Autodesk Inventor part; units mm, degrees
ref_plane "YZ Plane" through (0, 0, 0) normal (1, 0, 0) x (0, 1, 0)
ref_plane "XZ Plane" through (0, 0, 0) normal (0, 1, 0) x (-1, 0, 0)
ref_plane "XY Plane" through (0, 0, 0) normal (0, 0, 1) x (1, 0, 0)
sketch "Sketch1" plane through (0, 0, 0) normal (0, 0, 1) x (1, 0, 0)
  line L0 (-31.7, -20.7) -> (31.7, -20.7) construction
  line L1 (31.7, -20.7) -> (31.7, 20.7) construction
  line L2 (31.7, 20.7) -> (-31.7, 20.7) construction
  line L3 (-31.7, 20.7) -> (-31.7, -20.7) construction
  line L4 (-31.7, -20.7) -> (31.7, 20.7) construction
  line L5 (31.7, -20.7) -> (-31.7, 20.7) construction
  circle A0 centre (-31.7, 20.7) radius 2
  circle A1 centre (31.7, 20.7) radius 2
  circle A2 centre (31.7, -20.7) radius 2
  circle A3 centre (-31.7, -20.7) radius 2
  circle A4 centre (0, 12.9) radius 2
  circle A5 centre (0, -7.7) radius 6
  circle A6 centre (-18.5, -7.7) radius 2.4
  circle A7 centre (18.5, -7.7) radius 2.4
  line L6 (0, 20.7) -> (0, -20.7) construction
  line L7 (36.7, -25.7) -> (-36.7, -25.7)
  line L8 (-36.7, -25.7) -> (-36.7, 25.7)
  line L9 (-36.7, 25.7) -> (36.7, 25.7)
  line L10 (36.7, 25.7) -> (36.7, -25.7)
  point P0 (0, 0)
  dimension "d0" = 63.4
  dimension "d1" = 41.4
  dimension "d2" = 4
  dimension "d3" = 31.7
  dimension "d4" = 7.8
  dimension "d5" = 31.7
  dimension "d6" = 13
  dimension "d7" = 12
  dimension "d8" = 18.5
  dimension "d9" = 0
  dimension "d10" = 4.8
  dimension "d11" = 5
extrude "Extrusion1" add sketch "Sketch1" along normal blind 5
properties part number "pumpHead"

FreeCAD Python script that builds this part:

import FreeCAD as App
import Part
import Sketcher
from FreeCAD import Vector


def add_polygon(sketch, points):
    """Adds a closed chain of lines whose ends are joined by coincident constraints."""
    first, n = sketch.GeometryCount, len(points)
    for a, b in zip(points, points[1:] + points[:1]):
        sketch.addGeometry(Part.LineSegment(App.Vector(*a, 0), App.Vector(*b, 0)), False)
    for i in range(n):
        sketch.addConstraint(Sketcher.Constraint("Coincident", first + i, 2, first + (i + 1) % n, 1))

doc = App.newDocument("Part")
body = doc.addObject("PartDesign::Body", "Body")

# Sketch on XY plane
sketch1 = body.newObject("Sketcher::SketchObject", "Sketch")
sketch1.AttachmentSupport = (doc.getObject("XY_Plane"), [""])
sketch1.MapMode = "FlatFace"
add_polygon(sketch1, [(-36.7, -25.7), (36.7, -25.7), (36.7, 25.7), (-36.7, 25.7)])  # lines 0-3
sketch1.addGeometry(Part.Circle(Vector(-31.7, -20.7, 0), Vector(0, 0, 1), 2), False)  # 4
sketch1.addGeometry(Part.Circle(Vector(-18.5, -7.7, 0), Vector(0, 0, 1), 2.4), False)  # 5
sketch1.addGeometry(Part.Circle(Vector(31.7, -20.7, 0), Vector(0, 0, 1), 2), False)  # 6
sketch1.addGeometry(Part.Circle(Vector(0, -7.7, 0), Vector(0, 0, 1), 6), False)  # 7
sketch1.addGeometry(Part.Circle(Vector(18.5, -7.7, 0), Vector(0, 0, 1), 2.4), False)  # 8
sketch1.addGeometry(Part.Circle(Vector(-31.7, 20.7, 0), Vector(0, 0, 1), 2), False)  # 9
sketch1.addGeometry(Part.Circle(Vector(0, 12.9, 0), Vector(0, 0, 1), 2), False)  # 10
sketch1.addGeometry(Part.Circle(Vector(31.7, 20.7, 0), Vector(0, 0, 1), 2), False)  # 11
sketch1.addConstraint([
    Sketcher.Constraint("Horizontal", 0),
    Sketcher.Constraint("Vertical", 1),
    Sketcher.Constraint("Horizontal", 2),
    Sketcher.Constraint("Vertical", 3),
    Sketcher.Constraint("Equal", 4, 6),
    Sketcher.Constraint("Equal", 5, 8),
    Sketcher.Constraint("Equal", 6, 9),
    Sketcher.Constraint("Equal", 9, 10),
    Sketcher.Constraint("Equal", 10, 11),
    Sketcher.Constraint("Symmetric", 6, 3, 9, 3, -1, 1),
    Sketcher.Constraint("Symmetric", 4, 3, 11, 3, -1, 1),
    Sketcher.Constraint("Symmetric", 0, 2, 2, 2, -1, 1),
    Sketcher.Constraint("Symmetric", 4, 3, 6, 3, -2),
    Sketcher.Constraint("Symmetric", 5, 3, 8, 3, -2),
    Sketcher.Constraint("PointOnObject", 7, 3, -2),
    Sketcher.Constraint("PointOnObject", 10, 3, -2),
    Sketcher.Constraint("Horizontal", 5, 3, 7, 3),
    Sketcher.Constraint("Diameter", 4, 4.0),
    Sketcher.Constraint("Diameter", 7, 12.0),
    Sketcher.Constraint("Diameter", 5, 4.8),
    Sketcher.Constraint("DistanceY", 4, 3, 5, 3, 13.0),
    Sketcher.Constraint("DistanceX", 6, 3, 0, 2, 5.0),
    Sketcher.Constraint("DistanceY", 0, 2, 6, 3, 5.0),
    Sketcher.Constraint("DistanceX", 4, 3, -1, 1, 31.7),
    Sketcher.Constraint("DistanceX", 5, 3, -1, 1, 18.5),
    Sketcher.Constraint("DistanceY", 4, 3, 9, 3, 41.4),
    Sketcher.Constraint("DistanceY", 10, 3, 9, 3, 7.8),
])
pad1 = body.newObject("PartDesign::Pad", "Pad")
pad1.Profile = sketch1
pad1.Length = 5

doc.recompute()
